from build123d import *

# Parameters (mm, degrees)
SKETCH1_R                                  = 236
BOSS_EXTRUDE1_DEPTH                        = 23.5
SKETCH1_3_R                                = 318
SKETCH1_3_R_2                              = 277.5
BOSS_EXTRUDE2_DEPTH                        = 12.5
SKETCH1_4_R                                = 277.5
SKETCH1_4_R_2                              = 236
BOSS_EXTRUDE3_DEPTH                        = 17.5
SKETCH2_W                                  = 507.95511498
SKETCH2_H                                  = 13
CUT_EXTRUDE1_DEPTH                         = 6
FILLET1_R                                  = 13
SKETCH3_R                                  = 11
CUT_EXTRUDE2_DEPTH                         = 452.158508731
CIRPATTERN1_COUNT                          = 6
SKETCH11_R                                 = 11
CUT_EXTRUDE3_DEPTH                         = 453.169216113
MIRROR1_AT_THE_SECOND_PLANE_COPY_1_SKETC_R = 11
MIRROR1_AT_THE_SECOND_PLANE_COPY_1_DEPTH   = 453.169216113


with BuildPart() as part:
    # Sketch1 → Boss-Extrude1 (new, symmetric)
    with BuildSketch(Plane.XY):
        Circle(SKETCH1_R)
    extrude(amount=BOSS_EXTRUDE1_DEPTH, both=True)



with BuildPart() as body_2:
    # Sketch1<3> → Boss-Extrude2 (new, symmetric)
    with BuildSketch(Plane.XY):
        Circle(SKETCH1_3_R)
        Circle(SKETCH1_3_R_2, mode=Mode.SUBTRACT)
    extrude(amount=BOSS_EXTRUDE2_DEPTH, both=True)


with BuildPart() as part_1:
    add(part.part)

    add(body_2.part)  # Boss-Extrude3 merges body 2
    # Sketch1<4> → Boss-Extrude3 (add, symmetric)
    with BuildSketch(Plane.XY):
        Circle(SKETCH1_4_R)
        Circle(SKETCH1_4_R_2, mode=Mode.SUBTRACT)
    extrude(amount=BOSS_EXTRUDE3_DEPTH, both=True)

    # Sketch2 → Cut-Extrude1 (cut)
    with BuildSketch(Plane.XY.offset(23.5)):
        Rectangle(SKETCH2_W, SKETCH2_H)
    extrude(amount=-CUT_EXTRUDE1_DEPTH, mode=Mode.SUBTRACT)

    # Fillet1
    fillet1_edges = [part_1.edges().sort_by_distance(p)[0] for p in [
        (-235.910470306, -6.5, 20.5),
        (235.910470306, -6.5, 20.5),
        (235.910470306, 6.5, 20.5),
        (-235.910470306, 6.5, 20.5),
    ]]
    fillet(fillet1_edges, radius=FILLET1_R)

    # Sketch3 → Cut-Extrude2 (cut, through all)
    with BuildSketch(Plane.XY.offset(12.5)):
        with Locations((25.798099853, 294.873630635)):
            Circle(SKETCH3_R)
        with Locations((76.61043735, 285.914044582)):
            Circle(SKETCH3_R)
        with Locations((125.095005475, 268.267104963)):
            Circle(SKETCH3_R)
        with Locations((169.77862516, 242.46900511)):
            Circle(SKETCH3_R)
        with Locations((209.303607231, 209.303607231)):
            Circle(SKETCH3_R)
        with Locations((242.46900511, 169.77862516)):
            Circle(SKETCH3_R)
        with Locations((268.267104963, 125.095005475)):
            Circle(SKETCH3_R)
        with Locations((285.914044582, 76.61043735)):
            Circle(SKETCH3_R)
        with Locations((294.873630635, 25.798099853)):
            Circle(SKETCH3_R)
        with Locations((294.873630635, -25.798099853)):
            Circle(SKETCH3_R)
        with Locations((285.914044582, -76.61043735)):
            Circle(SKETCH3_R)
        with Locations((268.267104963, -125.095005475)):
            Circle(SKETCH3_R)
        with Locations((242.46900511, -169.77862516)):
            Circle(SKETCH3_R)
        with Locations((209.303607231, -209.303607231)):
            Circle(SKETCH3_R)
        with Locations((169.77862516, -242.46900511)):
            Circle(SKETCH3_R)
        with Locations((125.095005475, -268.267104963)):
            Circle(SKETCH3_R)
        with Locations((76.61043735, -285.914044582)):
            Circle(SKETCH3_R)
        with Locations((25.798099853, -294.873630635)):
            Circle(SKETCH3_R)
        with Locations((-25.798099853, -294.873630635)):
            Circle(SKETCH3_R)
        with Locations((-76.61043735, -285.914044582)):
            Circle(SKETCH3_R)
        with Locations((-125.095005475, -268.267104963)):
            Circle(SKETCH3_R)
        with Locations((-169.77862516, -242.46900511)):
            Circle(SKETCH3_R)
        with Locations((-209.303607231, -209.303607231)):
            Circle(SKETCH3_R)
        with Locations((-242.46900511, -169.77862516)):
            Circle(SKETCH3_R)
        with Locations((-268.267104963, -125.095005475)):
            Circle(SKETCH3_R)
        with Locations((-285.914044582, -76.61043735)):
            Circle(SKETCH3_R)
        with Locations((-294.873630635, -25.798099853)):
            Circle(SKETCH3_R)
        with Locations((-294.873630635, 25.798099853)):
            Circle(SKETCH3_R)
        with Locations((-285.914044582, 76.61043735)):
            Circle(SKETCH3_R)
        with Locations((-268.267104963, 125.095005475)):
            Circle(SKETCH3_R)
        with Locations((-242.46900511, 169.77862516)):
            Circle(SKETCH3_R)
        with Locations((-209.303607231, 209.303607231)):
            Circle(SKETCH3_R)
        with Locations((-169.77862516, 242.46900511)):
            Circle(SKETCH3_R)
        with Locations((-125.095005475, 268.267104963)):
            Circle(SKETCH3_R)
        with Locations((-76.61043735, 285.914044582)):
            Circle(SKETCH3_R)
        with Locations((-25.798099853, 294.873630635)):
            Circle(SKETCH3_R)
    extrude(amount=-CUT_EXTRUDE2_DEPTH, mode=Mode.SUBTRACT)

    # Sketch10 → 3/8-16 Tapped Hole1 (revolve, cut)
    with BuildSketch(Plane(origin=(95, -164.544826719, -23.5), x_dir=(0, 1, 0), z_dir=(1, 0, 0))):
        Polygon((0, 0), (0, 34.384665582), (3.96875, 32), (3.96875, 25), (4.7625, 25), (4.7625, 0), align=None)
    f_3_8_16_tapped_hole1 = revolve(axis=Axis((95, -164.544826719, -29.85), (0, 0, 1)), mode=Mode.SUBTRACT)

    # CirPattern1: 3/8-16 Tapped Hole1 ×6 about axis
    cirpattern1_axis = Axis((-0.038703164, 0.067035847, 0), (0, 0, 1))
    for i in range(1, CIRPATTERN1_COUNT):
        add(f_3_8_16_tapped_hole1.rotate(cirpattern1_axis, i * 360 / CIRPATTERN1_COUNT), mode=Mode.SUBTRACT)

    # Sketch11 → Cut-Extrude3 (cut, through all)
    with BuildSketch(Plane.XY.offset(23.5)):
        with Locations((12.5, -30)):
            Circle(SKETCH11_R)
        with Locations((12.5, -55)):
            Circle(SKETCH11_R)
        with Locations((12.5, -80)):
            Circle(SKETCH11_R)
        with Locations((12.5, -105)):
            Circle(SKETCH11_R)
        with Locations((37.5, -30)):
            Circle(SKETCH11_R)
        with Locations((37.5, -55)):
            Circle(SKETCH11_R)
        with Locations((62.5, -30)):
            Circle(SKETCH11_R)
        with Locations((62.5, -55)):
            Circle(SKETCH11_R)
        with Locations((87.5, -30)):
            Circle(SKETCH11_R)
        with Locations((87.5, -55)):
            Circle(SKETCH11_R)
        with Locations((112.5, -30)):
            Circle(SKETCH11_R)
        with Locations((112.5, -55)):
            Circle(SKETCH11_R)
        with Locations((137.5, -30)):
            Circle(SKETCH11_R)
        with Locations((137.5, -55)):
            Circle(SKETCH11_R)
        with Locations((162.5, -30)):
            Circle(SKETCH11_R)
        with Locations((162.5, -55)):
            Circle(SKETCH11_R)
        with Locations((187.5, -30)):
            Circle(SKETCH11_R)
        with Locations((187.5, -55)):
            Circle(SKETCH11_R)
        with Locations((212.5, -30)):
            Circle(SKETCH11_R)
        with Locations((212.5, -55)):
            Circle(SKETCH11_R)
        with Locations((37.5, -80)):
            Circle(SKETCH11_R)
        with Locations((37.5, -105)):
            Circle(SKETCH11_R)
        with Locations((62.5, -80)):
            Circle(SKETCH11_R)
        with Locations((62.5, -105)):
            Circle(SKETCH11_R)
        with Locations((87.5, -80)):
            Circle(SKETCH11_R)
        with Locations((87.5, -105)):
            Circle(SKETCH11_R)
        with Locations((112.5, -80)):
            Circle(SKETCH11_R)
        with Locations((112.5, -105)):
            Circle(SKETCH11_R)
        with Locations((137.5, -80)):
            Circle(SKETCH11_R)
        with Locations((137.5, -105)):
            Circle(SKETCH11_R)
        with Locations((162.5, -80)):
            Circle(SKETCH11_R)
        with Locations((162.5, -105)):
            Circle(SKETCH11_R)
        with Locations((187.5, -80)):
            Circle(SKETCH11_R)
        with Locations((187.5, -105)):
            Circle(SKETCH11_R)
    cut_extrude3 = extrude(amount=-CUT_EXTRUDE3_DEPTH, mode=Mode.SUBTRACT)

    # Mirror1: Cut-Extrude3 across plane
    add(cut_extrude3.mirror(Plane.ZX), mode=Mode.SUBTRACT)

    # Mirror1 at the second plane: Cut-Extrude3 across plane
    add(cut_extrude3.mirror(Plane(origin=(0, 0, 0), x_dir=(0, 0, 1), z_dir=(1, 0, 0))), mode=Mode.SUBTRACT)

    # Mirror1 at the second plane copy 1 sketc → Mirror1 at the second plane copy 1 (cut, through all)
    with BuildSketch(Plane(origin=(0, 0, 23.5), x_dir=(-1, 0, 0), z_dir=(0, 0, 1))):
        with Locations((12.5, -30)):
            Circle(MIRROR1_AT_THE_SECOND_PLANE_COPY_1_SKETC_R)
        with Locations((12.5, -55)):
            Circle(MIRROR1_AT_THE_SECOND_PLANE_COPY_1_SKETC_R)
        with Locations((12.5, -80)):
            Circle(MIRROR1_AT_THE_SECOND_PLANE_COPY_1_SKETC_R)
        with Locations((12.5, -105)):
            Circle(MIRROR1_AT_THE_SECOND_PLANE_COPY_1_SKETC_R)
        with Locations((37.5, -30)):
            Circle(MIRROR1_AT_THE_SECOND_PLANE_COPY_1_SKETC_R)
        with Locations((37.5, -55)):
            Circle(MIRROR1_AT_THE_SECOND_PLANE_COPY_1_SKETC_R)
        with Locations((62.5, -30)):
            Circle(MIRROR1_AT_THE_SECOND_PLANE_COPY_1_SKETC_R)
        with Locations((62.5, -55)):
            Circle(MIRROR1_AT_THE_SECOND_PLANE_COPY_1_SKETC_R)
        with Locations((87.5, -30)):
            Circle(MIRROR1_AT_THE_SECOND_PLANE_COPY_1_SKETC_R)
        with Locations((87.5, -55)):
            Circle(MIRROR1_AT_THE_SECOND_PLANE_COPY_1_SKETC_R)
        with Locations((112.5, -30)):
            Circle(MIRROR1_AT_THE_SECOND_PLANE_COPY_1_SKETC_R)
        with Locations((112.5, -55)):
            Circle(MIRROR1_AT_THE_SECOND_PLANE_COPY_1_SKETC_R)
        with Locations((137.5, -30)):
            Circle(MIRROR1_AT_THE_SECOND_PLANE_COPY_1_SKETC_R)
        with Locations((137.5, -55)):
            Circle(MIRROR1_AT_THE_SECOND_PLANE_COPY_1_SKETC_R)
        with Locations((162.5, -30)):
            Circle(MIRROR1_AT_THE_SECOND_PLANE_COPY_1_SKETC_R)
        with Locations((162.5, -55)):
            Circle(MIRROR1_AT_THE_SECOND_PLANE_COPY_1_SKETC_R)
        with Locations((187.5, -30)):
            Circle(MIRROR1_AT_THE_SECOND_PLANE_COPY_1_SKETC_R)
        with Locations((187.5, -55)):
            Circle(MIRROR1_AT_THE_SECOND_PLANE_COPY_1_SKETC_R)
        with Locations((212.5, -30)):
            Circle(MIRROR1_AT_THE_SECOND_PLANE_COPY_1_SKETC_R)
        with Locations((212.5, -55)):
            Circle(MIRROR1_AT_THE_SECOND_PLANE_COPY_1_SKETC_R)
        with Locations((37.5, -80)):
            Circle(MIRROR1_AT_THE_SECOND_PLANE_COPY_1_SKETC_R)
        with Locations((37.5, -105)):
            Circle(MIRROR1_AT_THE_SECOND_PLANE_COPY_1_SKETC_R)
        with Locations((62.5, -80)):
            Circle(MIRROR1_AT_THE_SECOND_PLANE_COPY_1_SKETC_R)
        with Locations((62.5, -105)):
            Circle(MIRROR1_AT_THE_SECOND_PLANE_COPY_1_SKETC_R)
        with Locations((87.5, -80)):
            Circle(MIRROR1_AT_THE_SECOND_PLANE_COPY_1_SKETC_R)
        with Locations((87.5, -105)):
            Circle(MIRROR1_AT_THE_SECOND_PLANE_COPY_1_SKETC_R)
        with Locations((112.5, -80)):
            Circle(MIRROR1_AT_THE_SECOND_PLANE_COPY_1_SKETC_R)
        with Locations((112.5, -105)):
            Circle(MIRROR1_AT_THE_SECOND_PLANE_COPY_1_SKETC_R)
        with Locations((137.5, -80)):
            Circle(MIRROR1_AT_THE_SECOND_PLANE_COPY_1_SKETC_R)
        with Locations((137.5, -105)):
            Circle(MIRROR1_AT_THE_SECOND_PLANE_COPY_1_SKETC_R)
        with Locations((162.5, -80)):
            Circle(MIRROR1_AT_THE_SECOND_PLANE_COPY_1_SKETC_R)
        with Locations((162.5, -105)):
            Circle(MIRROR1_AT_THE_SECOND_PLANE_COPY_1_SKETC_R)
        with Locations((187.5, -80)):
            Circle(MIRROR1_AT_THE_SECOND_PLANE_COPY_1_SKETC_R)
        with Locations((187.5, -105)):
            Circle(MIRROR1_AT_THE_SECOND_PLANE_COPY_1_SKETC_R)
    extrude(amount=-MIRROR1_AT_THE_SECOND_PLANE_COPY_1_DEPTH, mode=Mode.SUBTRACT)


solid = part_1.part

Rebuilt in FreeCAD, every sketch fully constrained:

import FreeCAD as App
import Part
import Sketcher

V = App.Vector
Q = App.Units.Quantity


def edges_at(feature, points):
    """Names of the edges that pass closest to the given points."""
    edges = feature.Shape.Edges
    near = lambda p: min(range(len(edges)), key=lambda i: edges[i].distToShape(Part.Vertex(*p))[0])
    return sorted({f"Edge{near(p) + 1}" for p in points})

doc = App.newDocument("Part")
body = doc.addObject("PartDesign::Body", "Body")

# Sketch on XY plane
sketch1 = body.newObject("Sketcher::SketchObject", "Sketch")
sketch1.AttachmentSupport = (doc.getObject("XY_Plane"), [""])
sketch1.MapMode = "FlatFace"
sketch1.addGeometry(Part.Circle(V(0, 0, 0), V(0, 0, 1), 236), False)
sketch1.addConstraint(Sketcher.Constraint("Coincident", 0, 3, -1, 1))
sketch1.addConstraint(Sketcher.Constraint("Diameter", 0, 472.0))
pad1 = body.newObject("PartDesign::Pad", "Pad")
pad1.Profile = sketch1
pad1.Length = 47
pad1.Midplane = True
body2 = doc.addObject("PartDesign::Body", "Body001")

# Sketch on XY plane
sketch2 = body2.newObject("Sketcher::SketchObject", "Sketch001")
sketch2.AttachmentSupport = (doc.getObject("XY_Plane001"), [""])
sketch2.MapMode = "FlatFace"
sketch2.addGeometry(Part.Circle(V(0, 0, 0), V(0, 0, 1), 318), False)
sketch2.addGeometry(Part.Circle(V(0, 0, 0), V(0, 0, 1), 277.5), False)
sketch2.addConstraint(Sketcher.Constraint("Coincident", 0, 3, -1, 1))
sketch2.addConstraint(Sketcher.Constraint("Coincident", 1, 3, -1, 1))
sketch2.addConstraint(Sketcher.Constraint("Diameter", 0, 636.0))
sketch2.addConstraint(Sketcher.Constraint("Diameter", 1, 555.0))
pad2 = body2.newObject("PartDesign::Pad", "Pad001")
pad2.Profile = sketch2
pad2.Length = 25
pad2.Midplane = True
body.AllowCompound = True
doc.recompute()

boolean = body.newObject("PartDesign::Boolean", "Boolean")
boolean.Type = "Fuse"
boolean.addObjects([body2])

# Sketch on XY plane
sketch3 = body.newObject("Sketcher::SketchObject", "Sketch002")
sketch3.AttachmentSupport = (doc.getObject("XY_Plane"), [""])
sketch3.MapMode = "FlatFace"
sketch3.addGeometry(Part.Circle(V(0, 0, 0), V(0, 0, 1), 277.5), False)
sketch3.addGeometry(Part.Circle(V(0, 0, 0), V(0, 0, 1), 236), False)
sketch3.addConstraint(Sketcher.Constraint("Coincident", 0, 3, -1, 1))
sketch3.addConstraint(Sketcher.Constraint("Coincident", 1, 3, -1, 1))
sketch3.addConstraint(Sketcher.Constraint("Diameter", 0, 555.0))
sketch3.addConstraint(Sketcher.Constraint("Diameter", 1, 472.0))
pad3 = body.newObject("PartDesign::Pad", "Pad002")
pad3.Profile = sketch3
pad3.Length = 35
pad3.Midplane = True

# Sketch on XY plane
sketch4 = body.newObject("Sketcher::SketchObject", "Sketch003")
sketch4.AttachmentSupport = (doc.getObject("XY_Plane"), [""])
sketch4.MapMode = "FlatFace"
sketch4.AttachmentOffset = App.Placement(V(0, 0, 23.5), App.Rotation())
sketch4.addGeometry(Part.LineSegment(V(-253.977557, 6.5, 0), V(-253.977557, -6.5, 0)), False)
sketch4.addGeometry(Part.LineSegment(V(-253.977557, -6.5, 0), V(253.977557, -6.5, 0)), False)
sketch4.addGeometry(Part.LineSegment(V(253.977557, -6.5, 0), V(253.977557, 6.5, 0)), False)
sketch4.addGeometry(Part.LineSegment(V(253.977557, 6.5, 0), V(-253.977557, 6.5, 0)), False)
sketch4.addConstraint(Sketcher.Constraint("Coincident", 0, 2, 1, 1))
sketch4.addConstraint(Sketcher.Constraint("Coincident", 1, 2, 2, 1))
sketch4.addConstraint(Sketcher.Constraint("Coincident", 2, 2, 3, 1))
sketch4.addConstraint(Sketcher.Constraint("Coincident", 3, 2, 0, 1))
sketch4.addConstraint(Sketcher.Constraint("Vertical", 0))
sketch4.addConstraint(Sketcher.Constraint("Horizontal", 1))
sketch4.addConstraint(Sketcher.Constraint("Vertical", 2))
sketch4.addConstraint(Sketcher.Constraint("Horizontal", 3))
sketch4.addConstraint(Sketcher.Constraint("Symmetric", 0, 2, 2, 2, -1, 1))
sketch4.addConstraint(Sketcher.Constraint("DistanceY", 0, 2, 0, 1, 13.0))
sketch4.addConstraint(Sketcher.Constraint("DistanceX", 1, 1, 1, 2, 507.955115))
pocket1 = body.newObject("PartDesign::Pocket", "Pocket")
pocket1.Profile = sketch4
pocket1.Length = 6
doc.recompute()

fillet = body.newObject("PartDesign::Fillet", "Fillet")
fillet.Base = (pocket1, edges_at(pocket1, [
    (-235.91, -6.5, 20.5),
    (235.91, -6.5, 20.5),
    (235.91, 6.5, 20.5),
    (-235.91, 6.5, 20.5),
]))
fillet.Radius = 13

# Sketch on XY plane
sketch5 = body.newObject("Sketcher::SketchObject", "Sketch004")
sketch5.AttachmentSupport = (doc.getObject("XY_Plane"), [""])
sketch5.MapMode = "FlatFace"
sketch5.AttachmentOffset = App.Placement(V(0, 0, 12.5), App.Rotation())
sketch5.addGeometry(Part.Circle(V(25.7981, 294.873631, 0), V(0, 0, 1), 11), False)
sketch5.addGeometry(Part.Circle(V(76.610437, 285.914045, 0), V(0, 0, 1), 11), False)
sketch5.addGeometry(Part.Circle(V(125.095005, 268.267105, 0), V(0, 0, 1), 11), False)
sketch5.addGeometry(Part.Circle(V(169.778625, 242.469005, 0), V(0, 0, 1), 11), False)
sketch5.addGeometry(Part.Circle(V(209.303607, 209.303607, 0), V(0, 0, 1), 11), False)
sketch5.addGeometry(Part.Circle(V(242.469005, 169.778625, 0), V(0, 0, 1), 11), False)
sketch5.addGeometry(Part.Circle(V(268.267105, 125.095005, 0), V(0, 0, 1), 11), False)
sketch5.addGeometry(Part.Circle(V(285.914045, 76.610437, 0), V(0, 0, 1), 11), False)
sketch5.addGeometry(Part.Circle(V(294.873631, 25.7981, 0), V(0, 0, 1), 11), False)
sketch5.addGeometry(Part.Circle(V(294.873631, -25.7981, 0), V(0, 0, 1), 11), False)
sketch5.addGeometry(Part.Circle(V(285.914045, -76.610437, 0), V(0, 0, 1), 11), False)
sketch5.addGeometry(Part.Circle(V(268.267105, -125.095005, 0), V(0, 0, 1), 11), False)
sketch5.addGeometry(Part.Circle(V(242.469005, -169.778625, 0), V(0, 0, 1), 11), False)
sketch5.addGeometry(Part.Circle(V(209.303607, -209.303607, 0), V(0, 0, 1), 11), False)
sketch5.addGeometry(Part.Circle(V(169.778625, -242.469005, 0), V(0, 0, 1), 11), False)
sketch5.addGeometry(Part.Circle(V(125.095005, -268.267105, 0), V(0, 0, 1), 11), False)
sketch5.addGeometry(Part.Circle(V(76.610437, -285.914045, 0), V(0, 0, 1), 11), False)
sketch5.addGeometry(Part.Circle(V(25.7981, -294.873631, 0), V(0, 0, 1), 11), False)
sketch5.addGeometry(Part.Circle(V(-25.7981, -294.873631, 0), V(0, 0, 1), 11), False)
sketch5.addGeometry(Part.Circle(V(-76.610437, -285.914045, 0), V(0, 0, 1), 11), False)
sketch5.addGeometry(Part.Circle(V(-125.095005, -268.267105, 0), V(0, 0, 1), 11), False)
sketch5.addGeometry(Part.Circle(V(-169.778625, -242.469005, 0), V(0, 0, 1), 11), False)
sketch5.addGeometry(Part.Circle(V(-209.303607, -209.303607, 0), V(0, 0, 1), 11), False)
sketch5.addGeometry(Part.Circle(V(-242.469005, -169.778625, 0), V(0, 0, 1), 11), False)
sketch5.addGeometry(Part.Circle(V(-268.267105, -125.095005, 0), V(0, 0, 1), 11), False)
sketch5.addGeometry(Part.Circle(V(-285.914045, -76.610437, 0), V(0, 0, 1), 11), False)
sketch5.addGeometry(Part.Circle(V(-294.873631, -25.7981, 0), V(0, 0, 1), 11), False)
sketch5.addGeometry(Part.Circle(V(-294.873631, 25.7981, 0), V(0, 0, 1), 11), False)
sketch5.addGeometry(Part.Circle(V(-285.914045, 76.610437, 0), V(0, 0, 1), 11), False)
sketch5.addGeometry(Part.Circle(V(-268.267105, 125.095005, 0), V(0, 0, 1), 11), False)
sketch5.addGeometry(Part.Circle(V(-242.469005, 169.778625, 0), V(0, 0, 1), 11), False)
sketch5.addGeometry(Part.Circle(V(-209.303607, 209.303607, 0), V(0, 0, 1), 11), False)
sketch5.addGeometry(Part.Circle(V(-169.778625, 242.469005, 0), V(0, 0, 1), 11), False)
sketch5.addGeometry(Part.Circle(V(-125.095005, 268.267105, 0), V(0, 0, 1), 11), False)
sketch5.addGeometry(Part.Circle(V(-76.610437, 285.914045, 0), V(0, 0, 1), 11), False)
sketch5.addGeometry(Part.Circle(V(-25.7981, 294.873631, 0), V(0, 0, 1), 11), False)
sketch5.addConstraint(Sketcher.Constraint("Equal", 0, 1))
sketch5.addConstraint(Sketcher.Constraint("Equal", 1, 2))
sketch5.addConstraint(Sketcher.Constraint("Equal", 2, 3))
sketch5.addConstraint(Sketcher.Constraint("Equal", 3, 4))
sketch5.addConstraint(Sketcher.Constraint("Equal", 4, 5))
sketch5.addConstraint(Sketcher.Constraint("Equal", 5, 6))
sketch5.addConstraint(Sketcher.Constraint("Equal", 6, 7))
sketch5.addConstraint(Sketcher.Constraint("Equal", 7, 8))
sketch5.addConstraint(Sketcher.Constraint("Equal", 8, 9))
sketch5.addConstraint(Sketcher.Constraint("Equal", 9, 10))
sketch5.addConstraint(Sketcher.Constraint("Equal", 10, 11))
sketch5.addConstraint(Sketcher.Constraint("Equal", 11, 12))
sketch5.addConstraint(Sketcher.Constraint("Equal", 12, 13))
sketch5.addConstraint(Sketcher.Constraint("Equal", 13, 14))
sketch5.addConstraint(Sketcher.Constraint("Equal", 14, 15))
sketch5.addConstraint(Sketcher.Constraint("Equal", 15, 16))
sketch5.addConstraint(Sketcher.Constraint("Equal", 16, 17))
sketch5.addConstraint(Sketcher.Constraint("Equal", 17, 18))
sketch5.addConstraint(Sketcher.Constraint("Equal", 18, 19))
sketch5.addConstraint(Sketcher.Constraint("Equal", 19, 20))
sketch5.addConstraint(Sketcher.Constraint("Equal", 20, 21))
sketch5.addConstraint(Sketcher.Constraint("Equal", 21, 22))
sketch5.addConstraint(Sketcher.Constraint("Equal", 22, 23))
sketch5.addConstraint(Sketcher.Constraint("Equal", 23, 24))
sketch5.addConstraint(Sketcher.Constraint("Equal", 24, 25))
sketch5.addConstraint(Sketcher.Constraint("Equal", 25, 26))
sketch5.addConstraint(Sketcher.Constraint("Equal", 26, 27))
sketch5.addConstraint(Sketcher.Constraint("Equal", 27, 28))
sketch5.addConstraint(Sketcher.Constraint("Equal", 28, 29))
sketch5.addConstraint(Sketcher.Constraint("Equal", 29, 30))
sketch5.addConstraint(Sketcher.Constraint("Equal", 30, 31))
sketch5.addConstraint(Sketcher.Constraint("Equal", 31, 32))
sketch5.addConstraint(Sketcher.Constraint("Equal", 32, 33))
sketch5.addConstraint(Sketcher.Constraint("Equal", 33, 34))
sketch5.addConstraint(Sketcher.Constraint("Equal", 34, 35))
sketch5.addConstraint(Sketcher.Constraint("Symmetric", 0, 3, 18, 3, -1, 1))
sketch5.addConstraint(Sketcher.Constraint("Symmetric", 1, 3, 19, 3, -1, 1))
sketch5.addConstraint(Sketcher.Constraint("Symmetric", 2, 3, 20, 3, -1, 1))
sketch5.addConstraint(Sketcher.Constraint("Symmetric", 3, 3, 21, 3, -1, 1))
sketch5.addConstraint(Sketcher.Constraint("Symmetric", 4, 3, 22, 3, -1, 1))
sketch5.addConstraint(Sketcher.Constraint("Symmetric", 5, 3, 23, 3, -1, 1))
sketch5.addConstraint(Sketcher.Constraint("Symmetric", 6, 3, 24, 3, -1, 1))
sketch5.addConstraint(Sketcher.Constraint("Symmetric", 7, 3, 25, 3, -1, 1))
sketch5.addConstraint(Sketcher.Constraint("Symmetric", 8, 3, 26, 3, -1, 1))
sketch5.addConstraint(Sketcher.Constraint("Symmetric", 9, 3, 27, 3, -1, 1))
sketch5.addConstraint(Sketcher.Constraint("Symmetric", 10, 3, 28, 3, -1, 1))
sketch5.addConstraint(Sketcher.Constraint("Symmetric", 11, 3, 29, 3, -1, 1))
sketch5.addConstraint(Sketcher.Constraint("Symmetric", 12, 3, 30, 3, -1, 1))
sketch5.addConstraint(Sketcher.Constraint("Symmetric", 13, 3, 31, 3, -1, 1))
sketch5.addConstraint(Sketcher.Constraint("Symmetric", 14, 3, 32, 3, -1, 1))
sketch5.addConstraint(Sketcher.Constraint("Symmetric", 15, 3, 33, 3, -1, 1))
sketch5.addConstraint(Sketcher.Constraint("Symmetric", 16, 3, 34, 3, -1, 1))
sketch5.addConstraint(Sketcher.Constraint("Symmetric", 17, 3, 35, 3, -1, 1))
sketch5.addConstraint(Sketcher.Constraint("Symmetric", 17, 3, 18, 3, -2))
sketch5.addConstraint(Sketcher.Constraint("Symmetric", 16, 3, 19, 3, -2))
sketch5.addConstraint(Sketcher.Constraint("Symmetric", 15, 3, 20, 3, -2))
sketch5.addConstraint(Sketcher.Constraint("Symmetric", 14, 3, 21, 3, -2))
sketch5.addConstraint(Sketcher.Constraint("Symmetric", 13, 3, 22, 3, -2))
sketch5.addConstraint(Sketcher.Constraint("Symmetric", 12, 3, 23, 3, -2))
sketch5.addConstraint(Sketcher.Constraint("Symmetric", 11, 3, 24, 3, -2))
sketch5.addConstraint(Sketcher.Constraint("Symmetric", 10, 3, 25, 3, -2))
sketch5.addConstraint(Sketcher.Constraint("Symmetric", 9, 3, 26, 3, -2))
sketch5.addConstraint(Sketcher.Constraint("Diameter", 0, 22.0))
sketch5.addConstraint(Sketcher.Constraint("DistanceX", 2, 3, 5, 3, 117.374))
sketch5.addConstraint(Sketcher.Constraint("DistanceY", 6, 3, 3, 3, 117.374))
sketch5.addConstraint(Sketcher.Constraint("DistanceX", -1, 1, 0, 3, 25.7981))
sketch5.addConstraint(Sketcher.Constraint("DistanceY", -1, 1, 8, 3, 25.7981))
sketch5.addConstraint(Sketcher.Constraint("DistanceY", 3, 3, 2, 3, 25.7981))
sketch5.addConstraint(Sketcher.Constraint("DistanceX", 2, 3, 4, 3, 84.208602))
sketch5.addConstraint(Sketcher.Constraint("DistanceX", 5, 3, 6, 3, 25.7981))
sketch5.addConstraint(Sketcher.Constraint("DistanceY", 6, 3, 4, 3, 84.208602))
sketch5.addConstraint(Sketcher.Constraint("DistanceY", -1, 1, 0, 3, 294.873631))
sketch5.addConstraint(Sketcher.Constraint("DistanceX", -1, 1, 8, 3, 294.873631))
sketch5.addConstraint(Sketcher.Constraint("DistanceX", 1, 3, 2, 3, 48.484568))
sketch5.addConstraint(Sketcher.Constraint("DistanceY", 2, 3, 1, 3, 17.64694))
sketch5.addConstraint(Sketcher.Constraint("DistanceX", 2, 3, 3, 3, 44.68362))
sketch5.addConstraint(Sketcher.Constraint("DistanceY", 5, 3, 3, 3, 72.69038))
sketch5.addConstraint(Sketcher.Constraint("DistanceX", 6, 3, 7, 3, 17.64694))
sketch5.addConstraint(Sketcher.Constraint("DistanceY", 7, 3, 6, 3, 48.484568))
sketch5.addConstraint(Sketcher.Constraint("DistanceY", 11, 3, 6, 3, 250.190011))
sketch5.addConstraint(Sketcher.Constraint("DistanceX", 20, 3, 15, 3, 250.190011))
pocket2 = body.newObject("PartDesign::Pocket", "Pocket001")
pocket2.Profile = sketch5
pocket2.Type = "ThroughAll"

# Sketch on YZ plane
sketch6 = body.newObject("Sketcher::SketchObject", "Sketch005")
sketch6.AttachmentSupport = (doc.getObject("YZ_Plane"), [""])
sketch6.MapMode = "FlatFace"
sketch6.AttachmentOffset = App.Placement(V(0, 0, 95), App.Rotation())
sketch6.addGeometry(Part.LineSegment(V(-164.544827, 10.884666, 0), V(-164.544827, -23.5, 0)), False)
sketch6.addGeometry(Part.LineSegment(V(-164.544827, -23.5, 0), V(-159.782327, -23.5, 0)), False)
sketch6.addGeometry(Part.LineSegment(V(-159.782327, -23.5, 0), V(-159.782327, 1.5, 0)), False)
sketch6.addGeometry(Part.LineSegment(V(-159.782327, 1.5, 0), V(-160.576077, 1.5, 0)), False)
sketch6.addGeometry(Part.LineSegment(V(-160.576077, 1.5, 0), V(-160.576077, 8.5, 0)), False)
sketch6.addGeometry(Part.LineSegment(V(-160.576077, 8.5, 0), V(-164.544827, 10.884666, 0)), False)
sketch6.addGeometry(Part.LineSegment(V(-164.544827, -23.5, 0), V(-164.544827, 10.884666, 0)), True)  # axis
sketch6.addConstraint(Sketcher.Constraint("Coincident", 0, 2, 1, 1))
sketch6.addConstraint(Sketcher.Constraint("Coincident", 1, 2, 2, 1))
sketch6.addConstraint(Sketcher.Constraint("Coincident", 2, 2, 3, 1))
sketch6.addConstraint(Sketcher.Constraint("Coincident", 3, 2, 4, 1))
sketch6.addConstraint(Sketcher.Constraint("Coincident", 4, 2, 5, 1))
sketch6.addConstraint(Sketcher.Constraint("Coincident", 5, 2, 0, 1))
sketch6.addConstraint(Sketcher.Constraint("Vertical", 0))
sketch6.addConstraint(Sketcher.Constraint("Horizontal", 1))
sketch6.addConstraint(Sketcher.Constraint("Vertical", 2))
sketch6.addConstraint(Sketcher.Constraint("Horizontal", 3))
sketch6.addConstraint(Sketcher.Constraint("Vertical", 4))
sketch6.addConstraint(Sketcher.Constraint("Vertical", 6))
sketch6.addConstraint(Sketcher.Constraint("Coincident", 6, 1, 0, 2))
sketch6.addConstraint(Sketcher.Constraint("Equal", 0, 6))
sketch6.addConstraint(Sketcher.Constraint("DistanceY", 2, 1, 2, 2, 25.0))
sketch6.addConstraint(Sketcher.Constraint("DistanceY", 4, 1, 4, 2, 7.0))
sketch6.addConstraint(Sketcher.Constraint("Angle", 5, Q("149 deg")))
sketch6.addConstraint(Sketcher.Constraint("DistanceY", 0, 2, -1, 1, 23.5))
sketch6.addConstraint(Sketcher.Constraint("DistanceX", 1, 1, 1, 2, 4.7625))
sketch6.addConstraint(Sketcher.Constraint("DistanceX", 3, 2, 3, 1, 0.79375))
sketch6.addConstraint(Sketcher.Constraint("DistanceX", 0, 2, -1, 1, 164.544827))
groove = body.newObject("PartDesign::Groove", "Groove")
groove.Profile = sketch6
groove.ReferenceAxis = (sketch6, ["Axis0"])
groove.Angle = 360
doc.recompute()

datumline = body.newObject("PartDesign::Line", "DatumLine")
datumline.Placement = App.Placement(V(-0.038703, 0.067036, 0), App.Rotation(V(0, 0, 1), V(0, 0, 1)))
polarpattern = body.newObject("PartDesign::PolarPattern", "PolarPattern")
polarpattern.Originals = [groove]
polarpattern.Axis = (datumline, [""])
polarpattern.Angle = 360
polarpattern.Occurrences = 6
body.Tip = polarpattern

# Sketch on XY plane
sketch7 = body.newObject("Sketcher::SketchObject", "Sketch006")
sketch7.AttachmentSupport = (doc.getObject("XY_Plane"), [""])
sketch7.MapMode = "FlatFace"
sketch7.AttachmentOffset = App.Placement(V(0, 0, 23.5), App.Rotation())
sketch7.addGeometry(Part.Circle(V(12.5, -30, 0), V(0, 0, 1), 11), False)
sketch7.addGeometry(Part.Circle(V(12.5, -55, 0), V(0, 0, 1), 11), False)
sketch7.addGeometry(Part.Circle(V(12.5, -80, 0), V(0, 0, 1), 11), False)
sketch7.addGeometry(Part.Circle(V(12.5, -105, 0), V(0, 0, 1), 11), False)
sketch7.addGeometry(Part.Circle(V(37.5, -30, 0), V(0, 0, 1), 11), False)
sketch7.addGeometry(Part.Circle(V(37.5, -55, 0), V(0, 0, 1), 11), False)
sketch7.addGeometry(Part.Circle(V(62.5, -30, 0), V(0, 0, 1), 11), False)
sketch7.addGeometry(Part.Circle(V(62.5, -55, 0), V(0, 0, 1), 11), False)
sketch7.addGeometry(Part.Circle(V(87.5, -30, 0), V(0, 0, 1), 11), False)
sketch7.addGeometry(Part.Circle(V(87.5, -55, 0), V(0, 0, 1), 11), False)
sketch7.addGeometry(Part.Circle(V(112.5, -30, 0), V(0, 0, 1), 11), False)
sketch7.addGeometry(Part.Circle(V(112.5, -55, 0), V(0, 0, 1), 11), False)
sketch7.addGeometry(Part.Circle(V(137.5, -30, 0), V(0, 0, 1), 11), False)
sketch7.addGeometry(Part.Circle(V(137.5, -55, 0), V(0, 0, 1), 11), False)
sketch7.addGeometry(Part.Circle(V(162.5, -30, 0), V(0, 0, 1), 11), False)
sketch7.addGeometry(Part.Circle(V(162.5, -55, 0), V(0, 0, 1), 11), False)
sketch7.addGeometry(Part.Circle(V(187.5, -30, 0), V(0, 0, 1), 11), False)
sketch7.addGeometry(Part.Circle(V(187.5, -55, 0), V(0, 0, 1), 11), False)
sketch7.addGeometry(Part.Circle(V(212.5, -30, 0), V(0, 0, 1), 11), False)
sketch7.addGeometry(Part.Circle(V(212.5, -55, 0), V(0, 0, 1), 11), False)
sketch7.addGeometry(Part.Circle(V(37.5, -80, 0), V(0, 0, 1), 11), False)
sketch7.addGeometry(Part.Circle(V(37.5, -105, 0), V(0, 0, 1), 11), False)
sketch7.addGeometry(Part.Circle(V(62.5, -80, 0), V(0, 0, 1), 11), False)
sketch7.addGeometry(Part.Circle(V(62.5, -105, 0), V(0, 0, 1), 11), False)
sketch7.addGeometry(Part.Circle(V(87.5, -80, 0), V(0, 0, 1), 11), False)
sketch7.addGeometry(Part.Circle(V(87.5, -105, 0), V(0, 0, 1), 11), False)
sketch7.addGeometry(Part.Circle(V(112.5, -80, 0), V(0, 0, 1), 11), False)
sketch7.addGeometry(Part.Circle(V(112.5, -105, 0), V(0, 0, 1), 11), False)
sketch7.addGeometry(Part.Circle(V(137.5, -80, 0), V(0, 0, 1), 11), False)
sketch7.addGeometry(Part.Circle(V(137.5, -105, 0), V(0, 0, 1), 11), False)
sketch7.addGeometry(Part.Circle(V(162.5, -80, 0), V(0, 0, 1), 11), False)
sketch7.addGeometry(Part.Circle(V(162.5, -105, 0), V(0, 0, 1), 11), False)
sketch7.addGeometry(Part.Circle(V(187.5, -80, 0), V(0, 0, 1), 11), False)
sketch7.addGeometry(Part.Circle(V(187.5, -105, 0), V(0, 0, 1), 11), False)
sketch7.addConstraint(Sketcher.Constraint("Equal", 0, 1))
sketch7.addConstraint(Sketcher.Constraint("Equal", 1, 2))
sketch7.addConstraint(Sketcher.Constraint("Equal", 2, 3))
sketch7.addConstraint(Sketcher.Constraint("Equal", 3, 4))
sketch7.addConstraint(Sketcher.Constraint("Equal", 4, 5))
sketch7.addConstraint(Sketcher.Constraint("Equal", 5, 6))
sketch7.addConstraint(Sketcher.Constraint("Equal", 6, 7))
sketch7.addConstraint(Sketcher.Constraint("Equal", 7, 8))
sketch7.addConstraint(Sketcher.Constraint("Equal", 8, 9))
sketch7.addConstraint(Sketcher.Constraint("Equal", 9, 10))
sketch7.addConstraint(Sketcher.Constraint("Equal", 10, 11))
sketch7.addConstraint(Sketcher.Constraint("Equal", 11, 12))
sketch7.addConstraint(Sketcher.Constraint("Equal", 12, 13))
sketch7.addConstraint(Sketcher.Constraint("Equal", 13, 14))
sketch7.addConstraint(Sketcher.Constraint("Equal", 14, 15))
sketch7.addConstraint(Sketcher.Constraint("Equal", 15, 16))
sketch7.addConstraint(Sketcher.Constraint("Equal", 16, 17))
sketch7.addConstraint(Sketcher.Constraint("Equal", 17, 18))
sketch7.addConstraint(Sketcher.Constraint("Equal", 18, 19))
sketch7.addConstraint(Sketcher.Constraint("Equal", 19, 20))
sketch7.addConstraint(Sketcher.Constraint("Equal", 20, 21))
sketch7.addConstraint(Sketcher.Constraint("Equal", 21, 22))
sketch7.addConstraint(Sketcher.Constraint("Equal", 22, 23))
sketch7.addConstraint(Sketcher.Constraint("Equal", 23, 24))
sketch7.addConstraint(Sketcher.Constraint("Equal", 24, 25))
sketch7.addConstraint(Sketcher.Constraint("Equal", 25, 26))
sketch7.addConstraint(Sketcher.Constraint("Equal", 26, 27))
sketch7.addConstraint(Sketcher.Constraint("Equal", 27, 28))
sketch7.addConstraint(Sketcher.Constraint("Equal", 28, 29))
sketch7.addConstraint(Sketcher.Constraint("Equal", 29, 30))
sketch7.addConstraint(Sketcher.Constraint("Equal", 30, 31))
sketch7.addConstraint(Sketcher.Constraint("Equal", 31, 32))
sketch7.addConstraint(Sketcher.Constraint("Equal", 32, 33))
sketch7.addConstraint(Sketcher.Constraint("Horizontal", 0, 3, 4, 3))
sketch7.addConstraint(Sketcher.Constraint("Horizontal", 1, 3, 5, 3))
sketch7.addConstraint(Sketcher.Constraint("Horizontal", 4, 3, 6, 3))
sketch7.addConstraint(Sketcher.Constraint("Horizontal", 5, 3, 7, 3))
sketch7.addConstraint(Sketcher.Constraint("Horizontal", 6, 3, 8, 3))
sketch7.addConstraint(Sketcher.Constraint("Horizontal", 7, 3, 9, 3))
sketch7.addConstraint(Sketcher.Constraint("Horizontal", 8, 3, 10, 3))
sketch7.addConstraint(Sketcher.Constraint("Horizontal", 9, 3, 11, 3))
sketch7.addConstraint(Sketcher.Constraint("Horizontal", 10, 3, 12, 3))
sketch7.addConstraint(Sketcher.Constraint("Horizontal", 11, 3, 13, 3))
sketch7.addConstraint(Sketcher.Constraint("Horizontal", 12, 3, 14, 3))
sketch7.addConstraint(Sketcher.Constraint("Horizontal", 13, 3, 15, 3))
sketch7.addConstraint(Sketcher.Constraint("Horizontal", 14, 3, 16, 3))
sketch7.addConstraint(Sketcher.Constraint("Horizontal", 15, 3, 17, 3))
sketch7.addConstraint(Sketcher.Constraint("Horizontal", 16, 3, 18, 3))
sketch7.addConstraint(Sketcher.Constraint("Horizontal", 17, 3, 19, 3))
sketch7.addConstraint(Sketcher.Constraint("Horizontal", 2, 3, 20, 3))
sketch7.addConstraint(Sketcher.Constraint("Horizontal", 3, 3, 21, 3))
sketch7.addConstraint(Sketcher.Constraint("Horizontal", 20, 3, 22, 3))
sketch7.addConstraint(Sketcher.Constraint("Horizontal", 21, 3, 23, 3))
sketch7.addConstraint(Sketcher.Constraint("Horizontal", 22, 3, 24, 3))
sketch7.addConstraint(Sketcher.Constraint("Horizontal", 23, 3, 25, 3))
sketch7.addConstraint(Sketcher.Constraint("Horizontal", 24, 3, 26, 3))
sketch7.addConstraint(Sketcher.Constraint("Horizontal", 25, 3, 27, 3))
sketch7.addConstraint(Sketcher.Constraint("Horizontal", 26, 3, 28, 3))
sketch7.addConstraint(Sketcher.Constraint("Horizontal", 27, 3, 29, 3))
sketch7.addConstraint(Sketcher.Constraint("Horizontal", 28, 3, 30, 3))
sketch7.addConstraint(Sketcher.Constraint("Horizontal", 29, 3, 31, 3))
sketch7.addConstraint(Sketcher.Constraint("Horizontal", 30, 3, 32, 3))
sketch7.addConstraint(Sketcher.Constraint("Horizontal", 31, 3, 33, 3))
sketch7.addConstraint(Sketcher.Constraint("Vertical", 0, 3, 1, 3))
sketch7.addConstraint(Sketcher.Constraint("Vertical", 1, 3, 2, 3))
sketch7.addConstraint(Sketcher.Constraint("Vertical", 2, 3, 3, 3))
sketch7.addConstraint(Sketcher.Constraint("Vertical", 4, 3, 5, 3))
sketch7.addConstraint(Sketcher.Constraint("Vertical", 6, 3, 7, 3))
sketch7.addConstraint(Sketcher.Constraint("Vertical", 8, 3, 9, 3))
sketch7.addConstraint(Sketcher.Constraint("Vertical", 10, 3, 11, 3))
sketch7.addConstraint(Sketcher.Constraint("Vertical", 12, 3, 13, 3))
sketch7.addConstraint(Sketcher.Constraint("Vertical", 14, 3, 15, 3))
sketch7.addConstraint(Sketcher.Constraint("Vertical", 16, 3, 17, 3))
sketch7.addConstraint(Sketcher.Constraint("Vertical", 18, 3, 19, 3))
sketch7.addConstraint(Sketcher.Constraint("Vertical", 5, 3, 20, 3))
sketch7.addConstraint(Sketcher.Constraint("Vertical", 20, 3, 21, 3))
sketch7.addConstraint(Sketcher.Constraint("Vertical", 7, 3, 22, 3))
sketch7.addConstraint(Sketcher.Constraint("Vertical", 22, 3, 23, 3))
sketch7.addConstraint(Sketcher.Constraint("Vertical", 9, 3, 24, 3))
sketch7.addConstraint(Sketcher.Constraint("Vertical", 24, 3, 25, 3))
sketch7.addConstraint(Sketcher.Constraint("Vertical", 11, 3, 26, 3))
sketch7.addConstraint(Sketcher.Constraint("Vertical", 26, 3, 27, 3))
sketch7.addConstraint(Sketcher.Constraint("Vertical", 13, 3, 28, 3))
sketch7.addConstraint(Sketcher.Constraint("Vertical", 28, 3, 29, 3))
sketch7.addConstraint(Sketcher.Constraint("Vertical", 15, 3, 30, 3))
sketch7.addConstraint(Sketcher.Constraint("Vertical", 30, 3, 31, 3))
sketch7.addConstraint(Sketcher.Constraint("Vertical", 17, 3, 32, 3))
sketch7.addConstraint(Sketcher.Constraint("Vertical", 32, 3, 33, 3))
sketch7.addConstraint(Sketcher.Constraint("Diameter", 0, 22.0))
sketch7.addConstraint(Sketcher.Constraint("DistanceY", 0, 3, -1, 1, 30.0))
sketch7.addConstraint(Sketcher.Constraint("DistanceY", 1, 3, -1, 1, 55.0))
sketch7.addConstraint(Sketcher.Constraint("DistanceY", 2, 3, -1, 1, 80.0))
sketch7.addConstraint(Sketcher.Constraint("DistanceY", 3, 3, -1, 1, 105.0))
sketch7.addConstraint(Sketcher.Constraint("DistanceX", 0, 3, 4, 3, 25.0))
sketch7.addConstraint(Sketcher.Constraint("DistanceX", 4, 3, 6, 3, 25.0))
sketch7.addConstraint(Sketcher.Constraint("DistanceX", 6, 3, 8, 3, 25.0))
sketch7.addConstraint(Sketcher.Constraint("DistanceX", 8, 3, 10, 3, 25.0))
sketch7.addConstraint(Sketcher.Constraint("DistanceX", 10, 3, 12, 3, 25.0))
sketch7.addConstraint(Sketcher.Constraint("DistanceX", 12, 3, 14, 3, 25.0))
sketch7.addConstraint(Sketcher.Constraint("DistanceX", 14, 3, 16, 3, 25.0))
sketch7.addConstraint(Sketcher.Constraint("DistanceX", 16, 3, 18, 3, 25.0))
sketch7.addConstraint(Sketcher.Constraint("DistanceX", -1, 1, 0, 3, 12.5))
pocket3 = body.newObject("PartDesign::Pocket", "Pocket002")
pocket3.Profile = sketch7
pocket3.Type = "ThroughAll"
doc.recompute()

mirrored = body.newObject("PartDesign::Mirrored", "Mirrored")
mirrored.Originals = [pocket3]
mirrored.MirrorPlane = (doc.getObject("XZ_Plane"), [""])
body.Tip = mirrored
doc.recompute()

mirrored2 = body.newObject("PartDesign::Mirrored", "Mirrored001")
mirrored2.Originals = [pocket3]
mirrored2.MirrorPlane = (doc.getObject("YZ_Plane"), [""])
body.Tip = mirrored2

# Sketch on XY plane
sketch8 = body.newObject("Sketcher::SketchObject", "Sketch007")
sketch8.AttachmentSupport = (doc.getObject("XY_Plane"), [""])
sketch8.MapMode = "FlatFace"
sketch8.AttachmentOffset = App.Placement(V(0, 0, 23.5), App.Rotation())
sketch8.addGeometry(Part.Circle(V(-12.5, 30, 0), V(0, 0, 1), 11), False)
sketch8.addGeometry(Part.Circle(V(-12.5, 55, 0), V(0, 0, 1), 11), False)
sketch8.addGeometry(Part.Circle(V(-12.5, 80, 0), V(0, 0, 1), 11), False)
sketch8.addGeometry(Part.Circle(V(-12.5, 105, 0), V(0, 0, 1), 11), False)
sketch8.addGeometry(Part.Circle(V(-37.5, 30, 0), V(0, 0, 1), 11), False)
sketch8.addGeometry(Part.Circle(V(-37.5, 55, 0), V(0, 0, 1), 11), False)
sketch8.addGeometry(Part.Circle(V(-62.5, 30, 0), V(0, 0, 1), 11), False)
sketch8.addGeometry(Part.Circle(V(-62.5, 55, 0), V(0, 0, 1), 11), False)
sketch8.addGeometry(Part.Circle(V(-87.5, 30, 0), V(0, 0, 1), 11), False)
sketch8.addGeometry(Part.Circle(V(-87.5, 55, 0), V(0, 0, 1), 11), False)
sketch8.addGeometry(Part.Circle(V(-112.5, 30, 0), V(0, 0, 1), 11), False)
sketch8.addGeometry(Part.Circle(V(-112.5, 55, 0), V(0, 0, 1), 11), False)
sketch8.addGeometry(Part.Circle(V(-137.5, 30, 0), V(0, 0, 1), 11), False)
sketch8.addGeometry(Part.Circle(V(-137.5, 55, 0), V(0, 0, 1), 11), False)
sketch8.addGeometry(Part.Circle(V(-162.5, 30, 0), V(0, 0, 1), 11), False)
sketch8.addGeometry(Part.Circle(V(-162.5, 55, 0), V(0, 0, 1), 11), False)
sketch8.addGeometry(Part.Circle(V(-187.5, 30, 0), V(0, 0, 1), 11), False)
sketch8.addGeometry(Part.Circle(V(-187.5, 55, 0), V(0, 0, 1), 11), False)
sketch8.addGeometry(Part.Circle(V(-212.5, 30, 0), V(0, 0, 1), 11), False)
sketch8.addGeometry(Part.Circle(V(-212.5, 55, 0), V(0, 0, 1), 11), False)
sketch8.addGeometry(Part.Circle(V(-37.5, 80, 0), V(0, 0, 1), 11), False)
sketch8.addGeometry(Part.Circle(V(-37.5, 105, 0), V(0, 0, 1), 11), False)
sketch8.addGeometry(Part.Circle(V(-62.5, 80, 0), V(0, 0, 1), 11), False)
sketch8.addGeometry(Part.Circle(V(-62.5, 105, 0), V(0, 0, 1), 11), False)
sketch8.addGeometry(Part.Circle(V(-87.5, 80, 0), V(0, 0, 1), 11), False)
sketch8.addGeometry(Part.Circle(V(-87.5, 105, 0), V(0, 0, 1), 11), False)
sketch8.addGeometry(Part.Circle(V(-112.5, 80, 0), V(0, 0, 1), 11), False)
sketch8.addGeometry(Part.Circle(V(-112.5, 105, 0), V(0, 0, 1), 11), False)
sketch8.addGeometry(Part.Circle(V(-137.5, 80, 0), V(0, 0, 1), 11), False)
sketch8.addGeometry(Part.Circle(V(-137.5, 105, 0), V(0, 0, 1), 11), False)
sketch8.addGeometry(Part.Circle(V(-162.5, 80, 0), V(0, 0, 1), 11), False)
sketch8.addGeometry(Part.Circle(V(-162.5, 105, 0), V(0, 0, 1), 11), False)
sketch8.addGeometry(Part.Circle(V(-187.5, 80, 0), V(0, 0, 1), 11), False)
sketch8.addGeometry(Part.Circle(V(-187.5, 105, 0), V(0, 0, 1), 11), False)
sketch8.addConstraint(Sketcher.Constraint("Equal", 0, 1))
sketch8.addConstraint(Sketcher.Constraint("Equal", 1, 2))
sketch8.addConstraint(Sketcher.Constraint("Equal", 2, 3))
sketch8.addConstraint(Sketcher.Constraint("Equal", 3, 4))
sketch8.addConstraint(Sketcher.Constraint("Equal", 4, 5))
sketch8.addConstraint(Sketcher.Constraint("Equal", 5, 6))
sketch8.addConstraint(Sketcher.Constraint("Equal", 6, 7))
sketch8.addConstraint(Sketcher.Constraint("Equal", 7, 8))
sketch8.addConstraint(Sketcher.Constraint("Equal", 8, 9))
sketch8.addConstraint(Sketcher.Constraint("Equal", 9, 10))
sketch8.addConstraint(Sketcher.Constraint("Equal", 10, 11))
sketch8.addConstraint(Sketcher.Constraint("Equal", 11, 12))
sketch8.addConstraint(Sketcher.Constraint("Equal", 12, 13))
sketch8.addConstraint(Sketcher.Constraint("Equal", 13, 14))
sketch8.addConstraint(Sketcher.Constraint("Equal", 14, 15))
sketch8.addConstraint(Sketcher.Constraint("Equal", 15, 16))
sketch8.addConstraint(Sketcher.Constraint("Equal", 16, 17))
sketch8.addConstraint(Sketcher.Constraint("Equal", 17, 18))
sketch8.addConstraint(Sketcher.Constraint("Equal", 18, 19))
sketch8.addConstraint(Sketcher.Constraint("Equal", 19, 20))
sketch8.addConstraint(Sketcher.Constraint("Equal", 20, 21))
sketch8.addConstraint(Sketcher.Constraint("Equal", 21, 22))
sketch8.addConstraint(Sketcher.Constraint("Equal", 22, 23))
sketch8.addConstraint(Sketcher.Constraint("Equal", 23, 24))
sketch8.addConstraint(Sketcher.Constraint("Equal", 24, 25))
sketch8.addConstraint(Sketcher.Constraint("Equal", 25, 26))
sketch8.addConstraint(Sketcher.Constraint("Equal", 26, 27))
sketch8.addConstraint(Sketcher.Constraint("Equal", 27, 28))
sketch8.addConstraint(Sketcher.Constraint("Equal", 28, 29))
sketch8.addConstraint(Sketcher.Constraint("Equal", 29, 30))
sketch8.addConstraint(Sketcher.Constraint("Equal", 30, 31))
sketch8.addConstraint(Sketcher.Constraint("Equal", 31, 32))
sketch8.addConstraint(Sketcher.Constraint("Equal", 32, 33))
sketch8.addConstraint(Sketcher.Constraint("Horizontal", 0, 3, 4, 3))
sketch8.addConstraint(Sketcher.Constraint("Horizontal", 1, 3, 5, 3))
sketch8.addConstraint(Sketcher.Constraint("Horizontal", 4, 3, 6, 3))
sketch8.addConstraint(Sketcher.Constraint("Horizontal", 5, 3, 7, 3))
sketch8.addConstraint(Sketcher.Constraint("Horizontal", 6, 3, 8, 3))
sketch8.addConstraint(Sketcher.Constraint("Horizontal", 7, 3, 9, 3))
sketch8.addConstraint(Sketcher.Constraint("Horizontal", 8, 3, 10, 3))
sketch8.addConstraint(Sketcher.Constraint("Horizontal", 9, 3, 11, 3))
sketch8.addConstraint(Sketcher.Constraint("Horizontal", 10, 3, 12, 3))
sketch8.addConstraint(Sketcher.Constraint("Horizontal", 11, 3, 13, 3))
sketch8.addConstraint(Sketcher.Constraint("Horizontal", 12, 3, 14, 3))
sketch8.addConstraint(Sketcher.Constraint("Horizontal", 13, 3, 15, 3))
sketch8.addConstraint(Sketcher.Constraint("Horizontal", 14, 3, 16, 3))
sketch8.addConstraint(Sketcher.Constraint("Horizontal", 15, 3, 17, 3))
sketch8.addConstraint(Sketcher.Constraint("Horizontal", 16, 3, 18, 3))
sketch8.addConstraint(Sketcher.Constraint("Horizontal", 17, 3, 19, 3))
sketch8.addConstraint(Sketcher.Constraint("Horizontal", 2, 3, 20, 3))
sketch8.addConstraint(Sketcher.Constraint("Horizontal", 3, 3, 21, 3))
sketch8.addConstraint(Sketcher.Constraint("Horizontal", 20, 3, 22, 3))
sketch8.addConstraint(Sketcher.Constraint("Horizontal", 21, 3, 23, 3))
sketch8.addConstraint(Sketcher.Constraint("Horizontal", 22, 3, 24, 3))
sketch8.addConstraint(Sketcher.Constraint("Horizontal", 23, 3, 25, 3))
sketch8.addConstraint(Sketcher.Constraint("Horizontal", 24, 3, 26, 3))
sketch8.addConstraint(Sketcher.Constraint("Horizontal", 25, 3, 27, 3))
sketch8.addConstraint(Sketcher.Constraint("Horizontal", 26, 3, 28, 3))
sketch8.addConstraint(Sketcher.Constraint("Horizontal", 27, 3, 29, 3))
sketch8.addConstraint(Sketcher.Constraint("Horizontal", 28, 3, 30, 3))
sketch8.addConstraint(Sketcher.Constraint("Horizontal", 29, 3, 31, 3))
sketch8.addConstraint(Sketcher.Constraint("Horizontal", 30, 3, 32, 3))
sketch8.addConstraint(Sketcher.Constraint("Horizontal", 31, 3, 33, 3))
sketch8.addConstraint(Sketcher.Constraint("Vertical", 0, 3, 1, 3))
sketch8.addConstraint(Sketcher.Constraint("Vertical", 1, 3, 2, 3))
sketch8.addConstraint(Sketcher.Constraint("Vertical", 2, 3, 3, 3))
sketch8.addConstraint(Sketcher.Constraint("Vertical", 4, 3, 5, 3))
sketch8.addConstraint(Sketcher.Constraint("Vertical", 6, 3, 7, 3))
sketch8.addConstraint(Sketcher.Constraint("Vertical", 8, 3, 9, 3))
sketch8.addConstraint(Sketcher.Constraint("Vertical", 10, 3, 11, 3))
sketch8.addConstraint(Sketcher.Constraint("Vertical", 12, 3, 13, 3))
sketch8.addConstraint(Sketcher.Constraint("Vertical", 14, 3, 15, 3))
sketch8.addConstraint(Sketcher.Constraint("Vertical", 16, 3, 17, 3))
sketch8.addConstraint(Sketcher.Constraint("Vertical", 18, 3, 19, 3))
sketch8.addConstraint(Sketcher.Constraint("Vertical", 5, 3, 20, 3))
sketch8.addConstraint(Sketcher.Constraint("Vertical", 20, 3, 21, 3))
sketch8.addConstraint(Sketcher.Constraint("Vertical", 7, 3, 22, 3))
sketch8.addConstraint(Sketcher.Constraint("Vertical", 22, 3, 23, 3))
sketch8.addConstraint(Sketcher.Constraint("Vertical", 9, 3, 24, 3))
sketch8.addConstraint(Sketcher.Constraint("Vertical", 24, 3, 25, 3))
sketch8.addConstraint(Sketcher.Constraint("Vertical", 11, 3, 26, 3))
sketch8.addConstraint(Sketcher.Constraint("Vertical", 26, 3, 27, 3))
sketch8.addConstraint(Sketcher.Constraint("Vertical", 13, 3, 28, 3))
sketch8.addConstraint(Sketcher.Constraint("Vertical", 28, 3, 29, 3))
sketch8.addConstraint(Sketcher.Constraint("Vertical", 15, 3, 30, 3))
sketch8.addConstraint(Sketcher.Constraint("Vertical", 30, 3, 31, 3))
sketch8.addConstraint(Sketcher.Constraint("Vertical", 17, 3, 32, 3))
sketch8.addConstraint(Sketcher.Constraint("Vertical", 32, 3, 33, 3))
sketch8.addConstraint(Sketcher.Constraint("Diameter", 0, 22.0))
sketch8.addConstraint(Sketcher.Constraint("DistanceY", -1, 1, 0, 3, 30.0))
sketch8.addConstraint(Sketcher.Constraint("DistanceY", -1, 1, 1, 3, 55.0))
sketch8.addConstraint(Sketcher.Constraint("DistanceY", -1, 1, 2, 3, 80.0))
sketch8.addConstraint(Sketcher.Constraint("DistanceY", -1, 1, 3, 3, 105.0))
sketch8.addConstraint(Sketcher.Constraint("DistanceX", 4, 3, 0, 3, 25.0))
sketch8.addConstraint(Sketcher.Constraint("DistanceX", 6, 3, 4, 3, 25.0))
sketch8.addConstraint(Sketcher.Constraint("DistanceX", 8, 3, 6, 3, 25.0))
sketch8.addConstraint(Sketcher.Constraint("DistanceX", 10, 3, 8, 3, 25.0))
sketch8.addConstraint(Sketcher.Constraint("DistanceX", 12, 3, 10, 3, 25.0))
sketch8.addConstraint(Sketcher.Constraint("DistanceX", 14, 3, 12, 3, 25.0))
sketch8.addConstraint(Sketcher.Constraint("DistanceX", 16, 3, 14, 3, 25.0))
sketch8.addConstraint(Sketcher.Constraint("DistanceX", 18, 3, 16, 3, 25.0))
sketch8.addConstraint(Sketcher.Constraint("DistanceX", 0, 3, -1, 1, 12.5))
pocket4 = body.newObject("PartDesign::Pocket", "Pocket003")
pocket4.Profile = sketch8
pocket4.Type = "ThroughAll"

doc.recompute()
